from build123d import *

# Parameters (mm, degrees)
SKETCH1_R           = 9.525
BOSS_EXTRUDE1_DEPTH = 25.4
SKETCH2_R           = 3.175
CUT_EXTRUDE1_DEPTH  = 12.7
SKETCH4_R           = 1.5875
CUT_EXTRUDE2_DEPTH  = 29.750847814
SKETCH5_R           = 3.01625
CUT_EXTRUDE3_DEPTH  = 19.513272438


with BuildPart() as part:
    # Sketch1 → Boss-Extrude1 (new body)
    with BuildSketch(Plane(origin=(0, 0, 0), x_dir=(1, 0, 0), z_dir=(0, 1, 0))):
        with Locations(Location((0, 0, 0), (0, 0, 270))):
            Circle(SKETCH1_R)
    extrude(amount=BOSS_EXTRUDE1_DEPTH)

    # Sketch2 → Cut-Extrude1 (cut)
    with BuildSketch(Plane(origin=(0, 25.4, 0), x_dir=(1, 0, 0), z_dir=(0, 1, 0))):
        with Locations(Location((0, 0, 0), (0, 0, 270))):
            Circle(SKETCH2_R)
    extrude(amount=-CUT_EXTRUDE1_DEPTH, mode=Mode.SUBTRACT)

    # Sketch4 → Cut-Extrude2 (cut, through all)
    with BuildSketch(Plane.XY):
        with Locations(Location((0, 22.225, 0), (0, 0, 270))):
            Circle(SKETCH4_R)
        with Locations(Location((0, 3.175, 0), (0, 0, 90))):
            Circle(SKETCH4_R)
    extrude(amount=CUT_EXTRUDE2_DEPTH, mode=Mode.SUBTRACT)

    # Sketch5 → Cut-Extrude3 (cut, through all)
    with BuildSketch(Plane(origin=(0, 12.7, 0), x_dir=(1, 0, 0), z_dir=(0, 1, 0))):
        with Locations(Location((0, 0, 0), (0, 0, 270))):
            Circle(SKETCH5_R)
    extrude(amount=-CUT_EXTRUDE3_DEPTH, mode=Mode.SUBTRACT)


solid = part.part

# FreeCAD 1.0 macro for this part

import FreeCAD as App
import Part
import Sketcher
Q = App.Units.Quantity

doc = App.newDocument("Part")
body = doc.addObject("PartDesign::Body", "Body")

# Sketch on XZ plane
sketch1 = body.newObject("Sketcher::SketchObject", "Sketch")
sketch1.AttachmentSupport = (doc.getObject("XZ_Plane"), [""])
sketch1.MapMode = "FlatFace"
sketch1.addGeometry(Part.Circle(App.Vector(0, 0, 0), App.Vector(0, 0, 1), 10), False)
sketch1.addConstraint([
    Sketcher.Constraint("Coincident", 0, 3, -1, 1),
    Sketcher.Constraint("Diameter", 0, Q("0.75 in")),
])
pad1 = body.newObject("PartDesign::Pad", "Pad")
pad1.Profile = sketch1
pad1.Length = Q("1 in")
pad1.Reversed = True

# Sketch on XZ plane
sketch2 = body.newObject("Sketcher::SketchObject", "Sketch001")
sketch2.AttachmentSupport = (doc.getObject("XZ_Plane"), [""])
sketch2.MapMode = "FlatFace"
sketch2.AttachmentOffset = App.Placement(App.Vector(0, 0, -1 * 25.4), App.Rotation())
sketch2.addGeometry(Part.Circle(App.Vector(0, 0, 0), App.Vector(0, 0, 1), 3.2), False)
sketch2.addConstraint([
    Sketcher.Constraint("Coincident", 0, 3, -1, 1),
    Sketcher.Constraint("Diameter", 0, Q("0.25 in")),
])
pocket1 = body.newObject("PartDesign::Pocket", "Pocket")
pocket1.Profile = sketch2
pocket1.Length = Q("0.5 in")
pocket1.Reversed = True

# Sketch on XY plane
sketch3 = body.newObject("Sketcher::SketchObject", "Sketch002")
sketch3.AttachmentSupport = (doc.getObject("XY_Plane"), [""])
sketch3.MapMode = "FlatFace"
sketch3.addGeometry([
    Part.Circle(App.Vector(0, 22.2, 0), App.Vector(0, 0, 1), 1.6),
    Part.Circle(App.Vector(0, 3.2, 0), App.Vector(0, 0, 1), 1.6),
], False)
sketch3.addConstraint([
    Sketcher.Constraint("Equal", 0, 1),
    Sketcher.Constraint("PointOnObject", 0, 3, -2),
    Sketcher.Constraint("PointOnObject", 1, 3, -2),
    Sketcher.Constraint("Diameter", 0, Q("0.125 in")),
    Sketcher.Constraint("DistanceY", 1, 3, 0, 3, Q("0.75 in")),
    Sketcher.Constraint("DistanceY", -1, 1, 0, 3, Q("0.875 in")),
])
pocket2 = body.newObject("PartDesign::Pocket", "Pocket001")
pocket2.Profile = sketch3
pocket2.Type = "ThroughAll"
pocket2.Reversed = True

# Sketch on XZ plane
sketch4 = body.newObject("Sketcher::SketchObject", "Sketch003")
sketch4.AttachmentSupport = (doc.getObject("XZ_Plane"), [""])
sketch4.MapMode = "FlatFace"
sketch4.AttachmentOffset = App.Placement(App.Vector(0, 0, -0.5 * 25.4), App.Rotation())
sketch4.addGeometry(Part.Circle(App.Vector(0, 0, 0), App.Vector(0, 0, 1), 3), False)
sketch4.addConstraint([
    Sketcher.Constraint("Coincident", 0, 3, -1, 1),
    Sketcher.Constraint("Diameter", 0, Q("0.2375 in")),
])
pocket3 = body.newObject("PartDesign::Pocket", "Pocket002")
pocket3.Profile = sketch4
pocket3.Type = "ThroughAll"
pocket3.Reversed = True

doc.recompute()
